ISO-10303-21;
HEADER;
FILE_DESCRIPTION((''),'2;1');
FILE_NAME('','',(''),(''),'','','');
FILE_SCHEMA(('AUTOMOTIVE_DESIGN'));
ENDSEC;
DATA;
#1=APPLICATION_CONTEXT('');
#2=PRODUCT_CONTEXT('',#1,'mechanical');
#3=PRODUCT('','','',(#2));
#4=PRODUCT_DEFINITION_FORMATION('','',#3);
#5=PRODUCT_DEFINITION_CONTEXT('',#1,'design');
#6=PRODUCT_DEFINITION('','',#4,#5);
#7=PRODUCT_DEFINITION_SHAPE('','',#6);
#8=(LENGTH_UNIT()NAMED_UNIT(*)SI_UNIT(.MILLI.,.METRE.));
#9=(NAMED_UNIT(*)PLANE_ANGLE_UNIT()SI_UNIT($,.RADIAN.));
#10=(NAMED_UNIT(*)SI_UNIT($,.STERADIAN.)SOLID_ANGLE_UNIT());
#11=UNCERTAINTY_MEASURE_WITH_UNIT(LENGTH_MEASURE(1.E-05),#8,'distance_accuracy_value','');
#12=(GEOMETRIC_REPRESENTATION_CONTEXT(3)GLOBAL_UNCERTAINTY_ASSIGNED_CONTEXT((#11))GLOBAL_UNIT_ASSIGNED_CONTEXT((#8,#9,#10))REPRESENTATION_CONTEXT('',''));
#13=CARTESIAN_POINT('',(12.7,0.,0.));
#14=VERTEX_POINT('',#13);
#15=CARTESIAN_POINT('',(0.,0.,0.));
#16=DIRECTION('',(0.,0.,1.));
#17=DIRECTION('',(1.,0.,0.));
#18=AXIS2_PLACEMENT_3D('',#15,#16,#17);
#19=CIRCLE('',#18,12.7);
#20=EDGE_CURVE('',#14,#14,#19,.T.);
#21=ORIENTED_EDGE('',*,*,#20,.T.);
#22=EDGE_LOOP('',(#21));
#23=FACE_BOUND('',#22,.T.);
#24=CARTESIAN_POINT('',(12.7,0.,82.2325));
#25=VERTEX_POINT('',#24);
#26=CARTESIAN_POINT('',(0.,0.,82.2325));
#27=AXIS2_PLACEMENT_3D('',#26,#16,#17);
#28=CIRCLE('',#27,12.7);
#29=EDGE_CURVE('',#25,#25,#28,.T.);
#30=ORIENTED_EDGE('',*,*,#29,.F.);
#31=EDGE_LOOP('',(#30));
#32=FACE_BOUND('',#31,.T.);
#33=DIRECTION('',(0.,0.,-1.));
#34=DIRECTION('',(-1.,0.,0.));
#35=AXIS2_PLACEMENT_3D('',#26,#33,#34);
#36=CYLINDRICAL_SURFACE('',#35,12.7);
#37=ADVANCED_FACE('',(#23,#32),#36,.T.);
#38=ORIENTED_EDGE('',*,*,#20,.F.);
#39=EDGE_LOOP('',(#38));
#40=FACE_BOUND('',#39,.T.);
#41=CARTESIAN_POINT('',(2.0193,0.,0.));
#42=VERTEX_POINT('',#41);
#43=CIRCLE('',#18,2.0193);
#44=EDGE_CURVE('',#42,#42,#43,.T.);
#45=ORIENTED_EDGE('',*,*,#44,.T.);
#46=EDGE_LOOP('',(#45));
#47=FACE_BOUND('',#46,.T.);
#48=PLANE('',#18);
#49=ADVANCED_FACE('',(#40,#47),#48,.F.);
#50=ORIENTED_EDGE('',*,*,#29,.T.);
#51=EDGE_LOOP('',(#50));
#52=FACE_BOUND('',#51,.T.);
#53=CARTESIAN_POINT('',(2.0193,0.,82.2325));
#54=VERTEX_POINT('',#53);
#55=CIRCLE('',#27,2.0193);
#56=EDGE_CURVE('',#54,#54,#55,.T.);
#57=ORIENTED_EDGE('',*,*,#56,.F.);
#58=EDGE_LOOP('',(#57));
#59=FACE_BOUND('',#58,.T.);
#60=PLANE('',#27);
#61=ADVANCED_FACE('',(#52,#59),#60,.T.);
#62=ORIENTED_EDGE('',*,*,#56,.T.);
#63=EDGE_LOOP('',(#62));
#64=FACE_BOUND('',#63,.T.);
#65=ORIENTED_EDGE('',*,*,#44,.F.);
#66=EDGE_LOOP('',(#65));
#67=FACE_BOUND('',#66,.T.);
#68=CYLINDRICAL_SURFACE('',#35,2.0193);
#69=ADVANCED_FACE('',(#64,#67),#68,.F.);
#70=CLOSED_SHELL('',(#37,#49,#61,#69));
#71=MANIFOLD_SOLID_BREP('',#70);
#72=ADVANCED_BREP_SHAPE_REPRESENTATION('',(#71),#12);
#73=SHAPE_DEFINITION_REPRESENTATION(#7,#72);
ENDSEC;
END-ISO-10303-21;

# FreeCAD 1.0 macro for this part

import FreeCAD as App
import Part
import Sketcher
Q = App.Units.Quantity

doc = App.newDocument("Part")
body = doc.addObject("PartDesign::Body", "Body")

# Sketch on XY plane
sketch1 = doc.addObject("Sketcher::SketchObject", "Sketch")
body.addObject(sketch1)
sketch1.AttachmentSupport = (doc.XY_Plane, [""])
sketch1.MapMode = "FlatFace"
sketch1.addGeometry([
    Part.Circle(App.Vector(0, 0, 0), App.Vector(0, 0, 1), 12.7),
    Part.Circle(App.Vector(0, 0, 0), App.Vector(0, 0, 1), 2.0193),
], False)
sketch1.addConstraint([
    Sketcher.Constraint("Coincident", 0, 3, -1, 1),
    Sketcher.Constraint("Coincident", 1, 3, -1, 1),
    Sketcher.Constraint("Diameter", 0, Q("1 in")),
    Sketcher.Constraint("Diameter", 1, Q("0.159 in")),
])
pad1 = doc.addObject("PartDesign::Pad", "Pad")
body.addObject(pad1)
pad1.Profile = sketch1
pad1.Length = Q("3.2375 in")

# Sketch on XY plane
sketch2 = doc.addObject("Sketcher::SketchObject", "Sketch001")
body.addObject(sketch2)
sketch2.AttachmentSupport = (doc.XY_Plane, [""])
sketch2.MapMode = "FlatFace"
sketch2.AttachmentOffset = App.Placement(App.Vector(0, 0, 3.2375 * 25.4), App.Rotation())
sketch2.addGeometry(Part.Circle(App.Vector(0, 0, 0), App.Vector(0, 0, 1), 2.0193), False)
sketch2.addConstraint([
    Sketcher.Constraint("Coincident", 0, 3, -1, 1),
    Sketcher.Constraint("Diameter", 0, Q("0.159 in")),
])
doc.recompute()
hole = doc.addObject("PartDesign::Hole", "Hole")
body.addObject(hole)
hole.Profile = sketch2
hole.ThreadType = "None"
hole.Diameter = Q("0.159 in")
hole.DepthType = "ThroughAll"

# Sketch on XY plane
sketch3 = doc.addObject("Sketcher::SketchObject", "Sketch002")
body.addObject(sketch3)
sketch3.AttachmentSupport = (doc.XY_Plane, [""])
sketch3.MapMode = "FlatFace"
sketch3.addGeometry(Part.Circle(App.Vector(0, 0, 0), App.Vector(0, 0, 1), 2.0193), False)
sketch3.addConstraint([
    Sketcher.Constraint("Coincident", 0, 3, -1, 1),
    Sketcher.Constraint("Diameter", 0, Q("0.159 in")),
])
doc.recompute()
hole2 = doc.addObject("PartDesign::Hole", "Hole001")
body.addObject(hole2)
hole2.Profile = sketch3
hole2.ThreadType = "None"
hole2.Diameter = Q("0.159 in")
hole2.DepthType = "ThroughAll"
hole2.Reversed = True

doc.recompute()
